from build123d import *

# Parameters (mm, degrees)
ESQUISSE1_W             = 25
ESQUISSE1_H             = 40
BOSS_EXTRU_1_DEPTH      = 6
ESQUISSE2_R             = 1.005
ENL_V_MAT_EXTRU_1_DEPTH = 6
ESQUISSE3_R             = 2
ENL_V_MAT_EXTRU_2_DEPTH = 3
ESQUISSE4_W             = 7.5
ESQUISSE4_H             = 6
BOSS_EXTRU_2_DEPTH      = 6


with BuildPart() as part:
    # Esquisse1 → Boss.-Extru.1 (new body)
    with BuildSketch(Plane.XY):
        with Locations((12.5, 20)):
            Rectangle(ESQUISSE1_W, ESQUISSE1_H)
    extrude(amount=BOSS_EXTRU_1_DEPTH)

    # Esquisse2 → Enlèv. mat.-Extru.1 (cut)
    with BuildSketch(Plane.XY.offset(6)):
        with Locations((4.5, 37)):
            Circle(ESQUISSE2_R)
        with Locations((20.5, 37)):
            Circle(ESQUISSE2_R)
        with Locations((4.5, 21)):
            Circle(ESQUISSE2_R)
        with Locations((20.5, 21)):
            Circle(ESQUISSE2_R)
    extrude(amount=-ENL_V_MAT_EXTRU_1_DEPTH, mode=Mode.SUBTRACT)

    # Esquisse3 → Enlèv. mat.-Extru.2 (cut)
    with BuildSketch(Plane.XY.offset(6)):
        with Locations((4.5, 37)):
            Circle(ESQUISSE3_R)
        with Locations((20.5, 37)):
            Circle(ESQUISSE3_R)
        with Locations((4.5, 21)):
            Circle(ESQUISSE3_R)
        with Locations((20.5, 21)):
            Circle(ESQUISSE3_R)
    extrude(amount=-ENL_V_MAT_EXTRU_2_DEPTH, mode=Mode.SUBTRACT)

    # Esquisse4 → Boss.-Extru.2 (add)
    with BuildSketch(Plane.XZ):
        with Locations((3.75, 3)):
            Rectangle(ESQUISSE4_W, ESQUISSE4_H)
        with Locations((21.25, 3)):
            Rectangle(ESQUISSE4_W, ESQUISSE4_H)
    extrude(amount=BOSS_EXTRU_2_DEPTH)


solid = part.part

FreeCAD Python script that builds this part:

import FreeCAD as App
import Part
import Sketcher
from FreeCAD import Vector
Q = App.Units.Quantity


def add_polygon(sketch, points):
    """Adds a closed chain of lines whose ends are joined by coincident constraints."""
    first, n = sketch.GeometryCount, len(points)
    for a, b in zip(points, points[1:] + points[:1]):
        sketch.addGeometry(Part.LineSegment(App.Vector(*a, 0), App.Vector(*b, 0)), False)
    for i in range(n):
        sketch.addConstraint(Sketcher.Constraint("Coincident", first + i, 2, first + (i + 1) % n, 1))

doc = App.newDocument("Part")
body = doc.addObject("PartDesign::Body", "Body")

sketch1 = body.newObject("Sketcher::SketchObject", "Sketch")
sketch1.AttachmentSupport = (doc.getObject("XY_Plane"), [""])
sketch1.MapMode = "FlatFace"
add_polygon(sketch1, [(0, 40), (0, 0), (25, 0), (25, 40)])
sketch1.addConstraint([
    Sketcher.Constraint("Vertical", 0),
    Sketcher.Constraint("Horizontal", 1),
    Sketcher.Constraint("Vertical", 2),
    Sketcher.Constraint("Horizontal", 3),
    Sketcher.Constraint("Coincident", 0, 2, -1, 1),
    Sketcher.Constraint("DistanceX", 1, 1, 1, 2, Q("25 mm")),
    Sketcher.Constraint("DistanceY", 0, 2, 0, 1, Q("40 mm")),
])
pad1 = body.newObject("PartDesign::Pad", "Pad")
pad1.Profile = sketch1
pad1.Length = 6

sketch2 = body.newObject("Sketcher::SketchObject", "Sketch001")
sketch2.AttachmentSupport = (doc.getObject("XY_Plane"), [""])
sketch2.MapMode = "FlatFace"
sketch2.AttachmentOffset = App.Placement(Vector(0, 0, 6), App.Rotation())
sketch2.addGeometry([
    Part.Circle(Vector(4.5, 37, 0), Vector(0, 0, 1), 1),
    Part.Circle(Vector(20.5, 37, 0), Vector(0, 0, 1), 1),
    Part.Circle(Vector(4.5, 21, 0), Vector(0, 0, 1), 1),
    Part.Circle(Vector(20.5, 21, 0), Vector(0, 0, 1), 1),
], False)
sketch2.addConstraint([
    Sketcher.Constraint("Equal", 0, 1),
    Sketcher.Constraint("Equal", 1, 2),
    Sketcher.Constraint("Equal", 2, 3),
    Sketcher.Constraint("Horizontal", 0, 3, 1, 3),
    Sketcher.Constraint("Horizontal", 2, 3, 3, 3),
    Sketcher.Constraint("Vertical", 0, 3, 2, 3),
    Sketcher.Constraint("Vertical", 1, 3, 3, 3),
    Sketcher.Constraint("Diameter", 0, Q("2.01 mm")),
    Sketcher.Constraint("DistanceY", -1, 1, 0, 3, Q("37 mm")),
    Sketcher.Constraint("DistanceY", -1, 1, 2, 3, Q("21 mm")),
    Sketcher.Constraint("DistanceX", 0, 3, 1, 3, Q("16 mm")),
    Sketcher.Constraint("DistanceX", -1, 1, 0, 3, Q("4.5 mm")),
])
pocket1 = body.newObject("PartDesign::Pocket", "Pocket")
pocket1.Profile = sketch2
pocket1.Length = 6

sketch3 = body.newObject("Sketcher::SketchObject", "Sketch002")
sketch3.AttachmentSupport = (doc.getObject("XY_Plane"), [""])
sketch3.MapMode = "FlatFace"
sketch3.AttachmentOffset = App.Placement(Vector(0, 0, 6), App.Rotation())
sketch3.addGeometry([
    Part.Circle(Vector(4.5, 37, 0), Vector(0, 0, 1), 2),
    Part.Circle(Vector(20.5, 37, 0), Vector(0, 0, 1), 2),
    Part.Circle(Vector(4.5, 21, 0), Vector(0, 0, 1), 2),
    Part.Circle(Vector(20.5, 21, 0), Vector(0, 0, 1), 2),
], False)
sketch3.addConstraint([
    Sketcher.Constraint("Equal", 0, 1),
    Sketcher.Constraint("Equal", 1, 2),
    Sketcher.Constraint("Equal", 2, 3),
    Sketcher.Constraint("Horizontal", 0, 3, 1, 3),
    Sketcher.Constraint("Horizontal", 2, 3, 3, 3),
    Sketcher.Constraint("Vertical", 0, 3, 2, 3),
    Sketcher.Constraint("Vertical", 1, 3, 3, 3),
    Sketcher.Constraint("Diameter", 0, Q("4 mm")),
    Sketcher.Constraint("DistanceY", -1, 1, 0, 3, Q("37 mm")),
    Sketcher.Constraint("DistanceY", -1, 1, 2, 3, Q("21 mm")),
    Sketcher.Constraint("DistanceX", 0, 3, 1, 3, Q("16 mm")),
    Sketcher.Constraint("DistanceX", -1, 1, 0, 3, Q("4.5 mm")),
])
pocket2 = body.newObject("PartDesign::Pocket", "Pocket001")
pocket2.Profile = sketch3
pocket2.Length = 3

sketch4 = body.newObject("Sketcher::SketchObject", "Sketch003")
sketch4.AttachmentSupport = (doc.getObject("XZ_Plane"), [""])
sketch4.MapMode = "FlatFace"
add_polygon(sketch4, [(0, 6), (0, 0), (8, 0), (8, 6)])
add_polygon(sketch4, [(18, 6), (18, 0), (25, 0), (25, 6)])
sketch4.addConstraint([
    Sketcher.Constraint("Vertical", 0),
    Sketcher.Constraint("Horizontal", 1),
    Sketcher.Constraint("Vertical", 2),
    Sketcher.Constraint("Horizontal", 3),
    Sketcher.Constraint("Vertical", 4),
    Sketcher.Constraint("Horizontal", 5),
    Sketcher.Constraint("Vertical", 6),
    Sketcher.Constraint("Horizontal", 7),
    Sketcher.Constraint("Coincident", 0, 2, -1, 1),
    Sketcher.Constraint("PointOnObject", 4, 2, -1),
    Sketcher.Constraint("Horizontal", 3, 2, 6, 2),
    Sketcher.Constraint("Equal", 3, 5),
    Sketcher.Constraint("DistanceY", 0, 2, 0, 1, Q("6 mm")),
    Sketcher.Constraint("DistanceX", 1, 1, 1, 2, Q("7.5 mm")),
    Sketcher.Constraint("DistanceX", -1, 1, 5, 2, Q("25 mm")),
])
pad2 = body.newObject("PartDesign::Pad", "Pad001")
pad2.Profile = sketch4
pad2.Length = 6

doc.recompute()
